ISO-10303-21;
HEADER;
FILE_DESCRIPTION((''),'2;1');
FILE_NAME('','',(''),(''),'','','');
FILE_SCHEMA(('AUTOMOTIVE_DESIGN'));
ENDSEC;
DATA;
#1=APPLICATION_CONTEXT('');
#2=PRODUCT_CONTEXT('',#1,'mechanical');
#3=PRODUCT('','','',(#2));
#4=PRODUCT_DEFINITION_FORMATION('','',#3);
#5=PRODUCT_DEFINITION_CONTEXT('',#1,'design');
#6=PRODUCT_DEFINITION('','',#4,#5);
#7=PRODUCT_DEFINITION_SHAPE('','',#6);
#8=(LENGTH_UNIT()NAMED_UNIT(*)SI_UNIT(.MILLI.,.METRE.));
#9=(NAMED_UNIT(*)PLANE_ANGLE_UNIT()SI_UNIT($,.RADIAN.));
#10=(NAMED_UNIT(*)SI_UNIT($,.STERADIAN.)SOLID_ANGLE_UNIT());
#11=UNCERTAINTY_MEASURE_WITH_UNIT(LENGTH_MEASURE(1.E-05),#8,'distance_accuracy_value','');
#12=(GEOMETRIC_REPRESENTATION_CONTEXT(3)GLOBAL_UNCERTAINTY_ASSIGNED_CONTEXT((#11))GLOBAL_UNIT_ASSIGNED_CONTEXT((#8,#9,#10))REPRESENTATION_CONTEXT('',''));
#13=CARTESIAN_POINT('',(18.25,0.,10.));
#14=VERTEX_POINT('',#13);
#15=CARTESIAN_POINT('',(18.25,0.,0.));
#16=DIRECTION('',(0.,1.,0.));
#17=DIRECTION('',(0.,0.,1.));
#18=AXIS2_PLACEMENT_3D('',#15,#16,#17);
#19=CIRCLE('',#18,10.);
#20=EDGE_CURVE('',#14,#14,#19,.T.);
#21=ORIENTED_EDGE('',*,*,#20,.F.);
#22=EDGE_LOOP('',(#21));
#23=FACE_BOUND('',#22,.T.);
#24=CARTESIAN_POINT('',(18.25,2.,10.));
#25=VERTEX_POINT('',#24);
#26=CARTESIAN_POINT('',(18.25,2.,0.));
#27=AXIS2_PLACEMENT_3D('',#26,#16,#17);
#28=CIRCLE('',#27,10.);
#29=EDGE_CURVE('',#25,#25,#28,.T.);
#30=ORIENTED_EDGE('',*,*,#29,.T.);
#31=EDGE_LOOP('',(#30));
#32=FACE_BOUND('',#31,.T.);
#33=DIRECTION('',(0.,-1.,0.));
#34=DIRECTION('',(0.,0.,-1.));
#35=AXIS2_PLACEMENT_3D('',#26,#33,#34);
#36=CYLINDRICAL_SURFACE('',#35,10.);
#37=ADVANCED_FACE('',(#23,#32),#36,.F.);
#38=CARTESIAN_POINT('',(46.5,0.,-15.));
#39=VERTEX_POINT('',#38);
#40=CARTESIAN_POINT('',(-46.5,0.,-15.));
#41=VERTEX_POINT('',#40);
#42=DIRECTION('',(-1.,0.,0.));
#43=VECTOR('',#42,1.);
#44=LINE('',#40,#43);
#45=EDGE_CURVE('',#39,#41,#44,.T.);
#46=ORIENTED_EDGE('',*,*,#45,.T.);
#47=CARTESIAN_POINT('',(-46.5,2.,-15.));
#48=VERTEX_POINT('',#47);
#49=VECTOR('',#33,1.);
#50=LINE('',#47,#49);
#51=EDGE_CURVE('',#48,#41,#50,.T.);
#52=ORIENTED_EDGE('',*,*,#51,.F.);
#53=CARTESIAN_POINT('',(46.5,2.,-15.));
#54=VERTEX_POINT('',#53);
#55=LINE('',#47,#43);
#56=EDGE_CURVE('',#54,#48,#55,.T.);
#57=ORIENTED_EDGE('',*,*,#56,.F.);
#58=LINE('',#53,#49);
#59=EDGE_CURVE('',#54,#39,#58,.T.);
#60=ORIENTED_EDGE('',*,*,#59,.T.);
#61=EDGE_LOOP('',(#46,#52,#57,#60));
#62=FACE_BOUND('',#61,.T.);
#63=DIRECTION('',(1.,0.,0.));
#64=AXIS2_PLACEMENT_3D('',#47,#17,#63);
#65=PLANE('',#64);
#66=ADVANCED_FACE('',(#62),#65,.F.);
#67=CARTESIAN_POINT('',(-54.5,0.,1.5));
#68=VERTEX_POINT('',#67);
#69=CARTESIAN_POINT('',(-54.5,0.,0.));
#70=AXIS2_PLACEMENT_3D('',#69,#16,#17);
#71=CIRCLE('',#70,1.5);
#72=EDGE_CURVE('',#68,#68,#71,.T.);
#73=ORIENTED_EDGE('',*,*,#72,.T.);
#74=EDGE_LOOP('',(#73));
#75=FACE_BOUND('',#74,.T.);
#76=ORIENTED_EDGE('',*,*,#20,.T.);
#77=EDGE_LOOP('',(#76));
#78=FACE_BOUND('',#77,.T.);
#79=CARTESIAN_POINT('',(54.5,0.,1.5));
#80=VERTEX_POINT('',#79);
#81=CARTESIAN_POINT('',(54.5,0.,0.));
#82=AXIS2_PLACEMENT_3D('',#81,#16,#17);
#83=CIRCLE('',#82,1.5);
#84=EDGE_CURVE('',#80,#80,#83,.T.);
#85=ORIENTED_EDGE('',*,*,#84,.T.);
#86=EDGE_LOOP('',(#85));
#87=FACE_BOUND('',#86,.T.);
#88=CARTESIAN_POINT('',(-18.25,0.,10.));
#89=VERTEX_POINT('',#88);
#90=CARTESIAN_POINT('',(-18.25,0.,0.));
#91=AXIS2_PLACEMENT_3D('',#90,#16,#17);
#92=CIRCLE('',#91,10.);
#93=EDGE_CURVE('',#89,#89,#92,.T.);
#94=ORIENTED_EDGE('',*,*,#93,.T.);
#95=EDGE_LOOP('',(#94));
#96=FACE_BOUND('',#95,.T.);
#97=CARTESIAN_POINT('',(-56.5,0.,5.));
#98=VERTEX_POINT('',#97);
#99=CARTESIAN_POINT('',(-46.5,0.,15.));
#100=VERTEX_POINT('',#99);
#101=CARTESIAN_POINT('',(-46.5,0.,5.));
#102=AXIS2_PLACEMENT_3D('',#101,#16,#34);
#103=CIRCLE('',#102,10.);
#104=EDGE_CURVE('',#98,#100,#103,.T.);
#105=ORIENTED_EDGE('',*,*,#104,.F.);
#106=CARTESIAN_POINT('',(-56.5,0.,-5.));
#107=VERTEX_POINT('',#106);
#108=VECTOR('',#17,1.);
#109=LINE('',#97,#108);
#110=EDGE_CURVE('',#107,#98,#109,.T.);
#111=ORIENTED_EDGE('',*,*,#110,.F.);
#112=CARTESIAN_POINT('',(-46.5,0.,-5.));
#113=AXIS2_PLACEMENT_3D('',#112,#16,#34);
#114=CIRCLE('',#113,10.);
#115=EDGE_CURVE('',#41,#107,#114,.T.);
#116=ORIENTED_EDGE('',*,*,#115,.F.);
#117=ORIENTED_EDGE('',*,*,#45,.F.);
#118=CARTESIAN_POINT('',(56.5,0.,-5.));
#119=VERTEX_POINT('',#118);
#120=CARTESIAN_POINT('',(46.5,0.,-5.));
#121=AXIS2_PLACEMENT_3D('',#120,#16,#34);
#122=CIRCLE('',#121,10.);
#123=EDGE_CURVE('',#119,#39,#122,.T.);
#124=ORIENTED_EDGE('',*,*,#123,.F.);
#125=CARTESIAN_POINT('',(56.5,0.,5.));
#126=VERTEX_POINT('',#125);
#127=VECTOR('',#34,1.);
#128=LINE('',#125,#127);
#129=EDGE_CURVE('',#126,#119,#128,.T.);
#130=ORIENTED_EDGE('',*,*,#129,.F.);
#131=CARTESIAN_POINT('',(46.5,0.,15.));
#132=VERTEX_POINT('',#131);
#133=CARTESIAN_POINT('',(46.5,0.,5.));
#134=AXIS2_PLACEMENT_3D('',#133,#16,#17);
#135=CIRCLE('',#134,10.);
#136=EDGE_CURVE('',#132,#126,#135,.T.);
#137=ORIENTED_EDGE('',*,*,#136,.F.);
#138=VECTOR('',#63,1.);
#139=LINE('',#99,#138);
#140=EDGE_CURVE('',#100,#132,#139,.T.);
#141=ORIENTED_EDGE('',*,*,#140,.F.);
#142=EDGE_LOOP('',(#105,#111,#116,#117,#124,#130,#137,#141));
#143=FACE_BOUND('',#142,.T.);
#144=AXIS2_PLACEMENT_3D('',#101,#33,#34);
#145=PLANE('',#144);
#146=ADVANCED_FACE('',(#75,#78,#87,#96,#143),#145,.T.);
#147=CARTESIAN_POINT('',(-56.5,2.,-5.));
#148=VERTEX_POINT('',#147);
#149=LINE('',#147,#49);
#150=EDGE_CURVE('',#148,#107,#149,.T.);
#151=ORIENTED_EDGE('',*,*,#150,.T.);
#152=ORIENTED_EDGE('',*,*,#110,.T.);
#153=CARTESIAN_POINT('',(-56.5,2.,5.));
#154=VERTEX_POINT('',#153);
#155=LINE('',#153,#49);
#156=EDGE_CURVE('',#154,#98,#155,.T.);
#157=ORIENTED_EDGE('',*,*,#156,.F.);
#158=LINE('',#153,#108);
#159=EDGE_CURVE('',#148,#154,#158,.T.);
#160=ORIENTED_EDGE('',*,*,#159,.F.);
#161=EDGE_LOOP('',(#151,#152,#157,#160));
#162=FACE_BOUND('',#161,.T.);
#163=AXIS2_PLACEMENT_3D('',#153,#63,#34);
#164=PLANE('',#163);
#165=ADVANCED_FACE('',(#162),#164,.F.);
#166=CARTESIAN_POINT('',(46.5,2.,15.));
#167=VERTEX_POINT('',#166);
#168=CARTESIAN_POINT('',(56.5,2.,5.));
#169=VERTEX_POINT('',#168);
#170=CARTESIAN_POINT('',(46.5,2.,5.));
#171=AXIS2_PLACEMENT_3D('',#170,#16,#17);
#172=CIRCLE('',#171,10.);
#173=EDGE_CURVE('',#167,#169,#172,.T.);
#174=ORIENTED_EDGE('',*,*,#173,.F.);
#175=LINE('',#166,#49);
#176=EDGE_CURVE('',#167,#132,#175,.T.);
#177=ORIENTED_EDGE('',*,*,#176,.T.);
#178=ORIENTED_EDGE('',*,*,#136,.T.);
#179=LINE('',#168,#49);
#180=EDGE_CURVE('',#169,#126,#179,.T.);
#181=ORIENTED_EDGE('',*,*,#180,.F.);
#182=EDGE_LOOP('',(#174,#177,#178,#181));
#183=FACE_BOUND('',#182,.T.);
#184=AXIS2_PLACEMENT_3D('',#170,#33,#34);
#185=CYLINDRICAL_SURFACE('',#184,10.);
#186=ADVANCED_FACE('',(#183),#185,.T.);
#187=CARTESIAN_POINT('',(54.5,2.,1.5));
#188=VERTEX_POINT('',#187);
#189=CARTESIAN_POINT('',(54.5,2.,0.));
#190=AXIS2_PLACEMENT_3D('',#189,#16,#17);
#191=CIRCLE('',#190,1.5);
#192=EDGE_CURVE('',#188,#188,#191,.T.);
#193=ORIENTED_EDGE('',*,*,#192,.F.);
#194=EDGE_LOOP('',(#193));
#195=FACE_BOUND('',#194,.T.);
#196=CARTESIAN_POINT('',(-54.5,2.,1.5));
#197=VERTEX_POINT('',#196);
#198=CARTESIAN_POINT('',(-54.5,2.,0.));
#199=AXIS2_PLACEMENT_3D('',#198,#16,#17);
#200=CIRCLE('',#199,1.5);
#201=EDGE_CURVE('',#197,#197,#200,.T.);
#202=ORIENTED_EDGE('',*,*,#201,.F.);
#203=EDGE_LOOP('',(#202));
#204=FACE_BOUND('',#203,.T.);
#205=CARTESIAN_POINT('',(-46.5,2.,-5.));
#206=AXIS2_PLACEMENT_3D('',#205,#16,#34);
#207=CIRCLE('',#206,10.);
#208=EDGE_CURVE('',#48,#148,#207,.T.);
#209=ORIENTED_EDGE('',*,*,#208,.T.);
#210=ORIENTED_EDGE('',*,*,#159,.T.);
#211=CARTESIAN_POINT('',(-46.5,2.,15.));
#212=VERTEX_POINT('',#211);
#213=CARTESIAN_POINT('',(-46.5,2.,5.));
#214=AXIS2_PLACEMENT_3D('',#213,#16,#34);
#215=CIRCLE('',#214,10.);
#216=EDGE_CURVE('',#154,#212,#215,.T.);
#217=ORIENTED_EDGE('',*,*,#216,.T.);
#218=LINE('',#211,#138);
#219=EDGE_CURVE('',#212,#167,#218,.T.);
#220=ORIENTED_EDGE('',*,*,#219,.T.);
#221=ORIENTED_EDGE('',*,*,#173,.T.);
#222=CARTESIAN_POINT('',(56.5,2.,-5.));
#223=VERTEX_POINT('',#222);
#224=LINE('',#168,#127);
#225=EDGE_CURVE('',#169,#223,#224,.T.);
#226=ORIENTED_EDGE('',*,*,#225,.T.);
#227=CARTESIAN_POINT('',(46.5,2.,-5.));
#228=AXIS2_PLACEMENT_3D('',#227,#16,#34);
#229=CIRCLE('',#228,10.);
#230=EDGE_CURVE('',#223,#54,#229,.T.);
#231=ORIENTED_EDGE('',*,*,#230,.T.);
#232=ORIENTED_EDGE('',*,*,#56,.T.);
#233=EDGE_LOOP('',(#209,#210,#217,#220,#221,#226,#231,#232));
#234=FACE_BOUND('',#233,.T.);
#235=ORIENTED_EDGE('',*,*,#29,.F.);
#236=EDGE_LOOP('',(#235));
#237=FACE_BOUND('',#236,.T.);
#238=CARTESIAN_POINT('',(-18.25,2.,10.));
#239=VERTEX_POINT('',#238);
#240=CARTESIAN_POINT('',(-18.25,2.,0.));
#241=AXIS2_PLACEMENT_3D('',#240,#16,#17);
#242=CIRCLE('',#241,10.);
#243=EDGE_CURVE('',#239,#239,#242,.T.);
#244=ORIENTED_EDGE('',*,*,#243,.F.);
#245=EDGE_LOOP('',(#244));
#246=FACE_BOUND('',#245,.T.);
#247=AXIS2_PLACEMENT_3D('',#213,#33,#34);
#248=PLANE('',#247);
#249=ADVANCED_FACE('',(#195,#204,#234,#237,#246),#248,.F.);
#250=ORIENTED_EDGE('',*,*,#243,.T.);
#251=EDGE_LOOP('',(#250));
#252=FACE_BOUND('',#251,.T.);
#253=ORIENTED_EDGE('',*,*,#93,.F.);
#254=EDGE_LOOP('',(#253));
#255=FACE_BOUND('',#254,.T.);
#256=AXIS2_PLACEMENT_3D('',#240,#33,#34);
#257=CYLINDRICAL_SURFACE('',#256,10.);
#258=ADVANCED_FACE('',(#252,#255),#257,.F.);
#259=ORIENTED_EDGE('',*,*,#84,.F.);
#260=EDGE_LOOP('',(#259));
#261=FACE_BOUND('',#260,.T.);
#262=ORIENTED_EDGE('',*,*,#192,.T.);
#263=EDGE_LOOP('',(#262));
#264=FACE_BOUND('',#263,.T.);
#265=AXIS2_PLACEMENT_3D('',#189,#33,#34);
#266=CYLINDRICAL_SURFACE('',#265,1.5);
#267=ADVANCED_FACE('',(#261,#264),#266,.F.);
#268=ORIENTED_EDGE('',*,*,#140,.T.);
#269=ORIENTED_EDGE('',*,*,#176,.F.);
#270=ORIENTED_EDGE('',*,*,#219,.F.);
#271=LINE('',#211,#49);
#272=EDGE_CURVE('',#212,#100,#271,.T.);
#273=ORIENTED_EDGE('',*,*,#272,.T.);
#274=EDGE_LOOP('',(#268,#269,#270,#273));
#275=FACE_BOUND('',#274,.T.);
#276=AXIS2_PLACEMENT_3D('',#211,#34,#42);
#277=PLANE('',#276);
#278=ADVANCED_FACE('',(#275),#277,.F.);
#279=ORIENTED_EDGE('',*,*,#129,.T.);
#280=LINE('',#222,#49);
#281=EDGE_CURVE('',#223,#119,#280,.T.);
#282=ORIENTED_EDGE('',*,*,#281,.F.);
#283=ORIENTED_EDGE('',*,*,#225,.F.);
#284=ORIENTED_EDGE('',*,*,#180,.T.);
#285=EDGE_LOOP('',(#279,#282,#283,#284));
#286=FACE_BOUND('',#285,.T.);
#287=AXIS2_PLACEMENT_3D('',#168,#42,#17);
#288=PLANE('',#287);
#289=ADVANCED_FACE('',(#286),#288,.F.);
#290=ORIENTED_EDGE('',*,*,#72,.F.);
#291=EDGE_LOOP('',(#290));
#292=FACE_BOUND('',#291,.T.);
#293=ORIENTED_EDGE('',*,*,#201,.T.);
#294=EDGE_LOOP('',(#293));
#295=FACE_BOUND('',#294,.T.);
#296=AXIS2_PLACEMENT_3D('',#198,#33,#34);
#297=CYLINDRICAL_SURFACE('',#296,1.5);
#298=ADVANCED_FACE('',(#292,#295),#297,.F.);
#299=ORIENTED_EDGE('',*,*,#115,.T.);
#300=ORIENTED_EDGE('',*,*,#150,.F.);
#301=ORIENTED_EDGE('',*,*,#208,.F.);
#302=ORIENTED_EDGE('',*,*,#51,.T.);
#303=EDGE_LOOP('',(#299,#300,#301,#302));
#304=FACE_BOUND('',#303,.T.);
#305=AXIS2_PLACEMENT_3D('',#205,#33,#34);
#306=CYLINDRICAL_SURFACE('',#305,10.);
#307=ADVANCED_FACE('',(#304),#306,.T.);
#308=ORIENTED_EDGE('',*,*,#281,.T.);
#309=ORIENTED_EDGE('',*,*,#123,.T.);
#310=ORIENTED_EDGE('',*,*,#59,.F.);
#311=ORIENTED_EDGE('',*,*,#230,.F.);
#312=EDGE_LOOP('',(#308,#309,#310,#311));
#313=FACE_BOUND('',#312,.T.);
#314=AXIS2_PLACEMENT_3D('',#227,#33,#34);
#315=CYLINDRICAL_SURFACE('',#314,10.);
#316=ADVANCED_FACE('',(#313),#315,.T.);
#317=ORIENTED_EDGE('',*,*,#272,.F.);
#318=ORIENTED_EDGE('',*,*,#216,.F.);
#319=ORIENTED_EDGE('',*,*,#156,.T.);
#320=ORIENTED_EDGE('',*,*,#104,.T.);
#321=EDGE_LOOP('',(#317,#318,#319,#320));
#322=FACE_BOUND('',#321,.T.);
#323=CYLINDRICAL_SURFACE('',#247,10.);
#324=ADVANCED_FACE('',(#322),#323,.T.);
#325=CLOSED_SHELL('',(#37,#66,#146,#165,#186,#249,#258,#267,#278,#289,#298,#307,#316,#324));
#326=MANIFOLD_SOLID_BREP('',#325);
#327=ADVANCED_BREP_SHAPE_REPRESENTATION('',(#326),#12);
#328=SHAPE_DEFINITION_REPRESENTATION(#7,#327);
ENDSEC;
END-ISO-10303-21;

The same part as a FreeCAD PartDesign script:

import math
import FreeCAD as App
import Part
import Sketcher
from FreeCAD import Vector

doc = App.newDocument("Part")
body = doc.addObject("PartDesign::Body", "Body")

# Sketch on XZ plane
sketch1 = body.newObject("Sketcher::SketchObject", "Sketch")
sketch1.AttachmentSupport = (doc.getObject("XZ_Plane"), [""])
sketch1.MapMode = "FlatFace"
sketch1.addGeometry([
    Part.LineSegment(Vector(-46.5, 15, 0), Vector(46.5, 15, 0)),  # 0
    Part.ArcOfCircle(Part.Circle(Vector(46.5, 5, 0), Vector(0, 0, 1), 10), math.radians(0), math.radians(90)),  # 1
    Part.LineSegment(Vector(56.5, 5, 0), Vector(56.5, -5, 0)),  # 2
    Part.ArcOfCircle(Part.Circle(Vector(46.5, -5, 0), Vector(0, 0, 1), 10), math.radians(-90), math.radians(0)),  # 3
    Part.LineSegment(Vector(46.5, -15, 0), Vector(-46.5, -15, 0)),  # 4
    Part.ArcOfCircle(Part.Circle(Vector(-46.5, -5, 0), Vector(0, 0, 1), 10), math.radians(180), math.radians(270)),  # 5
    Part.LineSegment(Vector(-56.5, -5, 0), Vector(-56.5, 5, 0)),  # 6
    Part.ArcOfCircle(Part.Circle(Vector(-46.5, 5, 0), Vector(0, 0, 1), 10), math.radians(90), math.radians(180)),  # 7
    Part.Circle(Vector(-54.5, 0, 0), Vector(0, 0, 1), 1.5),  # 8
    Part.Circle(Vector(-18.2, 0, 0), Vector(0, 0, 1), 10),  # 9
    Part.Circle(Vector(18.2, 0, 0), Vector(0, 0, 1), 10),  # 10
    Part.Circle(Vector(54.5, 0, 0), Vector(0, 0, 1), 1.5),  # 11
], False)
sketch1.addConstraint([
    Sketcher.Constraint("Tangent", 0, 2, 1, 2),
    Sketcher.Constraint("Tangent", 1, 1, 2, 1),
    Sketcher.Constraint("Tangent", 2, 2, 3, 2),
    Sketcher.Constraint("Tangent", 3, 1, 4, 1),
    Sketcher.Constraint("Tangent", 4, 2, 5, 2),
    Sketcher.Constraint("Tangent", 5, 1, 6, 1),
    Sketcher.Constraint("Tangent", 6, 2, 7, 2),
    Sketcher.Constraint("Tangent", 7, 1, 0, 1),
    Sketcher.Constraint("Horizontal", 0),
    Sketcher.Constraint("Vertical", 2),
    Sketcher.Constraint("Horizontal", 4),
    Sketcher.Constraint("Vertical", 6),
    Sketcher.Constraint("Equal", 1, 3),
    Sketcher.Constraint("Equal", 3, 5),
    Sketcher.Constraint("Equal", 5, 7),
    Sketcher.Constraint("Equal", 7, 9),
    Sketcher.Constraint("Equal", 9, 10),
    Sketcher.Constraint("Equal", 8, 11),
    Sketcher.Constraint("Symmetric", 1, 3, 5, 3, -1, 1),
    Sketcher.Constraint("Symmetric", 9, 3, 10, 3, -1, 1),
    Sketcher.Constraint("Symmetric", 8, 3, 11, 3, -1, 1),
    Sketcher.Constraint("PointOnObject", 8, 3, -1),
    Sketcher.Constraint("PointOnObject", 9, 3, -1),
    Sketcher.Constraint("Diameter", 8, 3.0),
    Sketcher.Constraint("Diameter", 9, 20.0),
    Sketcher.Constraint("DistanceX", 0, 1, 0, 2, 93.0),
    Sketcher.Constraint("DistanceY", 2, 2, 2, 1, 10.0),
    Sketcher.Constraint("DistanceX", 8, 3, 5, 3, 8.0),
    Sketcher.Constraint("DistanceX", 9, 3, 10, 3, 36.5),
])
pad1 = body.newObject("PartDesign::Pad", "Pad")
pad1.Profile = sketch1
pad1.Length = 2
pad1.Reversed = True

doc.recompute()
